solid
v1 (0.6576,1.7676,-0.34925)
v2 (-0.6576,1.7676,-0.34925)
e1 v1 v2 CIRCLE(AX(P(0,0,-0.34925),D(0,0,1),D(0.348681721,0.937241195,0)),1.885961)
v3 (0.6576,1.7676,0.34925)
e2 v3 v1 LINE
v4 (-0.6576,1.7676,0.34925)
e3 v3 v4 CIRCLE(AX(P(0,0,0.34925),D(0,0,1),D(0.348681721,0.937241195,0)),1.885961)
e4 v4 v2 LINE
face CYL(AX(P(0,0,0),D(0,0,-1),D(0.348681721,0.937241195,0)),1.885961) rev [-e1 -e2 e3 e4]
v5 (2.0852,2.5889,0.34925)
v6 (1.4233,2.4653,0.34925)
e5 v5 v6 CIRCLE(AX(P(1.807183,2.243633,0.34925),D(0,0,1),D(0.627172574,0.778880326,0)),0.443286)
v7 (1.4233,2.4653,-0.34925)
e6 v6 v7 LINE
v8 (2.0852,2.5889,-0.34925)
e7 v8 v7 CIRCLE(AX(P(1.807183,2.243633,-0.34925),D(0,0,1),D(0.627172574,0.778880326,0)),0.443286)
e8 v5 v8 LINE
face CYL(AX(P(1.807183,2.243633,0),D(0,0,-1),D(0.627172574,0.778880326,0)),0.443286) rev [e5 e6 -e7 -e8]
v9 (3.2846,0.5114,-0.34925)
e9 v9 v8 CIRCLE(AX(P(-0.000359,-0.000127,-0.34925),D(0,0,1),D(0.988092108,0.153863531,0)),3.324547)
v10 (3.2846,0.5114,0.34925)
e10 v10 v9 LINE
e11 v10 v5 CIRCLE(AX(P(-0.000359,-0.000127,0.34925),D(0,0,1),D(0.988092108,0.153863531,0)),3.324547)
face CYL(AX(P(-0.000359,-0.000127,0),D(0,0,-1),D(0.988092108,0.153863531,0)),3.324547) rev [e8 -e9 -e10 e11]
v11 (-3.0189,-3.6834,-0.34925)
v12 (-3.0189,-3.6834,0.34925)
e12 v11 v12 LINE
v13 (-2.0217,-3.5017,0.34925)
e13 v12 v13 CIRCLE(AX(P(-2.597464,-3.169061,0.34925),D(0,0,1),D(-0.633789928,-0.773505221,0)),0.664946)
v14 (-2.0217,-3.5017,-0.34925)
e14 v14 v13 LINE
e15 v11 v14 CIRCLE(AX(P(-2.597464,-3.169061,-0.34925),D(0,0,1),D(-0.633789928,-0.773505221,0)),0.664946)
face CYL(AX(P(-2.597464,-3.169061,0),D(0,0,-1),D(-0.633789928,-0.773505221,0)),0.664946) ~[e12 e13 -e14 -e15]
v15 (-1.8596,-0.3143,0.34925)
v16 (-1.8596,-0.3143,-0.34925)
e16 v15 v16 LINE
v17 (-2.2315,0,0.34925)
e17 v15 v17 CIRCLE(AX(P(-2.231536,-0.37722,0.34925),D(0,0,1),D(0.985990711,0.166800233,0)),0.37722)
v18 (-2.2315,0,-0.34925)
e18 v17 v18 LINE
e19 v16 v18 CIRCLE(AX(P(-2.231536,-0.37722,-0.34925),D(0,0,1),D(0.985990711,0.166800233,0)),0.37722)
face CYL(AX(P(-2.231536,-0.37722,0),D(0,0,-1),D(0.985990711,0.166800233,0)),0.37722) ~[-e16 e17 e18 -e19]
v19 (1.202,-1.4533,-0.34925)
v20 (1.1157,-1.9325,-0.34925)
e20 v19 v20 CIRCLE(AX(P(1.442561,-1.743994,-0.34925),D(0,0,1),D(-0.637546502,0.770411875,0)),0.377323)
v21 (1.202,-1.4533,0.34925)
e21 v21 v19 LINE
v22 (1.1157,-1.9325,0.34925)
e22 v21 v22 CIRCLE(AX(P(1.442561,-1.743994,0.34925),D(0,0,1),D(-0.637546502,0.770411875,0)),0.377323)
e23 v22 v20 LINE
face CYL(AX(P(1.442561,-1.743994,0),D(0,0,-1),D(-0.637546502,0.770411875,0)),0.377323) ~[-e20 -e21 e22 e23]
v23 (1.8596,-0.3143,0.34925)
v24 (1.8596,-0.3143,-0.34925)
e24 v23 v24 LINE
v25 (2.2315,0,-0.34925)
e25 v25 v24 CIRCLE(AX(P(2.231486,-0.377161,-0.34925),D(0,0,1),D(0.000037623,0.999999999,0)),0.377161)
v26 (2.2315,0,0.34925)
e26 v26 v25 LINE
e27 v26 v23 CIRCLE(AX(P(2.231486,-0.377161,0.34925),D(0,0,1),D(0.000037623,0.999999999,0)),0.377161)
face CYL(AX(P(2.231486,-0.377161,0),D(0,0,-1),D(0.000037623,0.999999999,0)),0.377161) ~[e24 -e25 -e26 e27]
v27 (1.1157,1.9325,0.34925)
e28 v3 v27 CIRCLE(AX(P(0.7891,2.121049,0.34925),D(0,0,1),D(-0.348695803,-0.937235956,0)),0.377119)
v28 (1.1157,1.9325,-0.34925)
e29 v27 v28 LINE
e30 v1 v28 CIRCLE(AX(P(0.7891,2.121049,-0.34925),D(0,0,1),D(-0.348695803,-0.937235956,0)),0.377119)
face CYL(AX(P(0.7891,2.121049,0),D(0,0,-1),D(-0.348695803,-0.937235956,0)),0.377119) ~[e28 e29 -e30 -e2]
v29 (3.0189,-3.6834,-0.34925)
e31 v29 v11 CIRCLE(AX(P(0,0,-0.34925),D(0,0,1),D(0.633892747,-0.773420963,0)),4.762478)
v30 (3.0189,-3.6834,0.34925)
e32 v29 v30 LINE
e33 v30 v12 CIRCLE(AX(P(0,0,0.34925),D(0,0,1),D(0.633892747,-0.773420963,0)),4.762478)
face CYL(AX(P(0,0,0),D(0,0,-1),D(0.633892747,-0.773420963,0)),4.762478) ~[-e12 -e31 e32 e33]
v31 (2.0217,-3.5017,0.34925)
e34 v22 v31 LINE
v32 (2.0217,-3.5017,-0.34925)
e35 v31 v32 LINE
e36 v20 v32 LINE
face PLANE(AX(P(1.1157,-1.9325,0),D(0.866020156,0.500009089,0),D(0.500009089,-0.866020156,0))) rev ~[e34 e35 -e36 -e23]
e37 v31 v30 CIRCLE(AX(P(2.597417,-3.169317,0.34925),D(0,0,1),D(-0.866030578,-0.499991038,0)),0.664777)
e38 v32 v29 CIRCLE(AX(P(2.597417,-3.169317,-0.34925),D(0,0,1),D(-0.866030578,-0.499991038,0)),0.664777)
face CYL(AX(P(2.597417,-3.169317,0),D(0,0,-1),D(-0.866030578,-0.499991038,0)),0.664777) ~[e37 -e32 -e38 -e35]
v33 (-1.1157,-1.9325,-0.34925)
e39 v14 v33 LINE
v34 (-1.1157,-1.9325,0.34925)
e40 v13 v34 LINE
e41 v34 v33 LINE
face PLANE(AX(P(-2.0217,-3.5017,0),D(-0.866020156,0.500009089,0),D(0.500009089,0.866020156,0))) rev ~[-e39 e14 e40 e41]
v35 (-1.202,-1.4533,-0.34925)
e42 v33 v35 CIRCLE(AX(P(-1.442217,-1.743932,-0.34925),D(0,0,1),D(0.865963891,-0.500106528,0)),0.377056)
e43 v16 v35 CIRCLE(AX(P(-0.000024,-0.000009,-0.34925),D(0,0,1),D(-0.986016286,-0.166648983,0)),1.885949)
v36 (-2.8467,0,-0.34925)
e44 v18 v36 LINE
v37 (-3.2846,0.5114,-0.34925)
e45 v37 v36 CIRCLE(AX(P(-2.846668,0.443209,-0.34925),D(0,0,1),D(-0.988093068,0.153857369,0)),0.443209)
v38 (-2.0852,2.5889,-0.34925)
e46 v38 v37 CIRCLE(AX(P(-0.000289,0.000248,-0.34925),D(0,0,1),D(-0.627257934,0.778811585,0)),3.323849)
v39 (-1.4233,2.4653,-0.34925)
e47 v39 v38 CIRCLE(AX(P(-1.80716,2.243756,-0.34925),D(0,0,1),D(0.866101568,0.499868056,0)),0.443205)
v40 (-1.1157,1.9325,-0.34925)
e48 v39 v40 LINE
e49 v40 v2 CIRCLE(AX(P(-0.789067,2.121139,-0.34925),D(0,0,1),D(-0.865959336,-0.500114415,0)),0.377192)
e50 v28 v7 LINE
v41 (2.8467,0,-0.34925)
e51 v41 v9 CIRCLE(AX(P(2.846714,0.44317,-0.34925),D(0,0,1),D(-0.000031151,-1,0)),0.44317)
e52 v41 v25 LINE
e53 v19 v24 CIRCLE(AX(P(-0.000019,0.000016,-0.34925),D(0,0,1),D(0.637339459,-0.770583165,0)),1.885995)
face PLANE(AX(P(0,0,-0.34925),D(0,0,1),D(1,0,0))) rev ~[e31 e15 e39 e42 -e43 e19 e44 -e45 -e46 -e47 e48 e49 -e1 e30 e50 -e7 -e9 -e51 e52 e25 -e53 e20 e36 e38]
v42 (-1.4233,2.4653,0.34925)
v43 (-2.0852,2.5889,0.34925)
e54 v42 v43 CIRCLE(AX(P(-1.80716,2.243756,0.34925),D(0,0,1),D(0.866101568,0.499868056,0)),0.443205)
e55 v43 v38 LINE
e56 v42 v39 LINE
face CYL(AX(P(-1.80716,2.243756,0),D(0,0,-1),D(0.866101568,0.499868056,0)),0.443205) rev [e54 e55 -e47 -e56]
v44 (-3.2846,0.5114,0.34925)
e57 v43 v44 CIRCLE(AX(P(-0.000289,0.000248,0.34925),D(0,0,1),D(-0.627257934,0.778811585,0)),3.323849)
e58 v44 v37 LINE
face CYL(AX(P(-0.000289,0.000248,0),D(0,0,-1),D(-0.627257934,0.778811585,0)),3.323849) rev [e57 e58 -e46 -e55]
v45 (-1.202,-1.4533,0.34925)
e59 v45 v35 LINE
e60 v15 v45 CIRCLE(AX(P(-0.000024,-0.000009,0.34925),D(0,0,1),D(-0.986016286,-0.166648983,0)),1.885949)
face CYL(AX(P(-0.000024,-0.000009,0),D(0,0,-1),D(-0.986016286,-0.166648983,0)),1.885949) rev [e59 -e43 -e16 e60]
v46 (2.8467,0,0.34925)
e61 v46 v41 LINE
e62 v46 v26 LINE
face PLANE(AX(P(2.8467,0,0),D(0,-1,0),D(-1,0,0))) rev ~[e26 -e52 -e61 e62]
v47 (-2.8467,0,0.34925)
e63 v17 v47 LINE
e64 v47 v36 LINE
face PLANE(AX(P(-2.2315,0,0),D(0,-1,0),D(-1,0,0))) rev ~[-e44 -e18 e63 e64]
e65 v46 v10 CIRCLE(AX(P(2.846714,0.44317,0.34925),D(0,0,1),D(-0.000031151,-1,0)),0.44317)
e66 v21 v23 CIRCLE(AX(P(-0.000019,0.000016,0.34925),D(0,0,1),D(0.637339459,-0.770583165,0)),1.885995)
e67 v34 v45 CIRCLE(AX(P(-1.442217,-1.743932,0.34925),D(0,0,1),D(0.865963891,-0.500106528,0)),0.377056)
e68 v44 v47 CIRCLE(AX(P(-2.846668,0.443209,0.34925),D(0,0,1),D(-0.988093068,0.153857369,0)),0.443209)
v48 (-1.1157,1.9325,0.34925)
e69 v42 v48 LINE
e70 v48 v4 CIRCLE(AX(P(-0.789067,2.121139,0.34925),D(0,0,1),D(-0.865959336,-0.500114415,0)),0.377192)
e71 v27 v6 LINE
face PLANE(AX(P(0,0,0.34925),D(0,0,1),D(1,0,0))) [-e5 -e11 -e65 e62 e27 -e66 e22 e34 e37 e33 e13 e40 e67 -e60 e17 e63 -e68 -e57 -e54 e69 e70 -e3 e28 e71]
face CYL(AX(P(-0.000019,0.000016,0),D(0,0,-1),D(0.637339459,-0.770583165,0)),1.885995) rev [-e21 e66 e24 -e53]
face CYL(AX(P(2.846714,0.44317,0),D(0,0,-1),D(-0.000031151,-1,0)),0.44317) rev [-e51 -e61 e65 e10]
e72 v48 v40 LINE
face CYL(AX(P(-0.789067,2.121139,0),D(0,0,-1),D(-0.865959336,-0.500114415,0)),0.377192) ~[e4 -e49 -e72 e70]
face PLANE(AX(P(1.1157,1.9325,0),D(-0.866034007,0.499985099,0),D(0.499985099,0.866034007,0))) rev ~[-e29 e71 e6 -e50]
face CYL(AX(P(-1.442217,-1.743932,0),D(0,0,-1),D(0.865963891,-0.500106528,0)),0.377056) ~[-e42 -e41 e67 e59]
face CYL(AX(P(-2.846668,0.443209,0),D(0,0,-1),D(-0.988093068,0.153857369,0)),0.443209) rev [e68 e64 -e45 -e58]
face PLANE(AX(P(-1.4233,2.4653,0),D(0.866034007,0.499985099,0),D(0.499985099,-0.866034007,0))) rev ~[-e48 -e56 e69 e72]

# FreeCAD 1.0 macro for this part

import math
import FreeCAD as App
import Part
import Sketcher
Q = App.Units.Quantity

doc = App.newDocument("Part")
body = doc.addObject("PartDesign::Body", "Body")

sketch1 = body.newObject("Sketcher::SketchObject", "Sketch")
sketch1.AttachmentSupport = (doc.getObject("XY_Plane"), [""])
sketch1.MapMode = "FlatFace"
sketch1.addGeometry([
    Part.ArcOfCircle(Part.Circle(App.Vector(2.5975, -3.1692, 0), App.Vector(0, 0, 1), 0.664907), math.radians(-149.995394), math.radians(-50.664508)),
    Part.ArcOfCircle(Part.Circle(App.Vector(0, 0, 0), App.Vector(0, 0, 1), 4.762478), math.radians(-50.66209), math.radians(230.66209)),
    Part.ArcOfCircle(Part.Circle(App.Vector(-2.5975, -3.1692, 0), App.Vector(0, 0, 1), 0.664815), math.radians(-129.335492), math.radians(-30.004606)),
    Part.LineSegment(App.Vector(-2.0217, -3.5017, 0), App.Vector(-1.1157, -1.9325, 0)),
    Part.ArcOfCircle(Part.Circle(App.Vector(-1.4424, -1.7439, 0), App.Vector(0, 0, 1), 0.37723), math.radians(-29.997325), math.radians(50.400612)),
    Part.ArcOfCircle(Part.Circle(App.Vector(0, 0, 0), App.Vector(0, 0, 1), 1.885961), math.radians(-170.406824), math.radians(-129.593579)),
    Part.ArcOfCircle(Part.Circle(App.Vector(-2.2315, -0.3772, 0), App.Vector(0, 0, 1), 0.377182), math.radians(9.599674), math.radians(90)),
    Part.LineSegment(App.Vector(-2.2315, 0, 0), App.Vector(-2.8467, 0, 0)),
    Part.ArcOfCircle(Part.Circle(App.Vector(-2.8467, 0.4432, 0), App.Vector(0, 0, 1), 0.443179), math.radians(171.147682), math.radians(270)),
    Part.ArcOfCircle(Part.Circle(App.Vector(0, 0, 0), App.Vector(0, 0, 1), 3.324173), math.radians(128.84931), math.radians(171.150313)),
    Part.ArcOfCircle(Part.Circle(App.Vector(-1.8072, 2.2437, 0), App.Vector(0, 0, 1), 0.443267), math.radians(29.994989), math.radians(128.845544)),
    Part.LineSegment(App.Vector(-1.4233, 2.4653, 0), App.Vector(-1.1157, 1.9325, 0)),
    Part.ArcOfCircle(Part.Circle(App.Vector(-0.7891, 2.1211, 0), App.Vector(0, 0, 1), 0.377144), math.radians(-149.995079), math.radians(-69.595084)),
    Part.ArcOfCircle(Part.Circle(App.Vector(0, 0, 0), App.Vector(0, 0, 1), 1.885961), math.radians(69.593296), math.radians(110.406704)),
    Part.ArcOfCircle(Part.Circle(App.Vector(0.7891, 2.1211, 0), App.Vector(0, 0, 1), 0.377166), math.radians(-110.404916), math.radians(-30.004921)),
    Part.LineSegment(App.Vector(1.1157, 1.9325, 0), App.Vector(1.4233, 2.4653, 0)),
    Part.ArcOfCircle(Part.Circle(App.Vector(1.8072, 2.2437, 0), App.Vector(0, 0, 1), 0.443223), math.radians(51.154456), math.radians(150.005011)),
    Part.ArcOfCircle(Part.Circle(App.Vector(0, 0, 0), App.Vector(0, 0, 1), 3.324224), math.radians(8.849687), math.radians(51.15069)),
    Part.ArcOfCircle(Part.Circle(App.Vector(2.8467, 0.4432, 0), App.Vector(0, 0, 1), 0.4432), math.radians(-90), math.radians(8.852318)),
    Part.LineSegment(App.Vector(2.8467, 0, 0), App.Vector(2.2315, 0, 0)),
    Part.ArcOfCircle(Part.Circle(App.Vector(2.2315, -0.3772, 0), App.Vector(0, 0, 1), 0.3772), math.radians(90), math.radians(170.400326)),
    Part.ArcOfCircle(Part.Circle(App.Vector(0, 0, 0), App.Vector(0, 0, 1), 1.885974), math.radians(-50.406421), math.radians(-9.593176)),
    Part.ArcOfCircle(Part.Circle(App.Vector(1.4424, -1.7439, 0), App.Vector(0, 0, 1), 0.377148), math.radians(129.599388), math.radians(209.997325)),
    Part.LineSegment(App.Vector(1.1157, -1.9325, 0), App.Vector(2.0217, -3.5017, 0)),
], False)
sketch1.addConstraint([
    Sketcher.Constraint("Tangent", 0, 2, 1, 1),
    Sketcher.Constraint("Tangent", 1, 2, 2, 1),
    Sketcher.Constraint("Tangent", 2, 2, 3, 1),
    Sketcher.Constraint("Tangent", 3, 2, 4, 1),
    Sketcher.Constraint("Tangent", 4, 2, 5, 2),
    Sketcher.Constraint("Tangent", 5, 1, 6, 1),
    Sketcher.Constraint("Tangent", 6, 2, 7, 1),
    Sketcher.Constraint("Tangent", 7, 2, 8, 2),
    Sketcher.Constraint("Tangent", 8, 1, 9, 2),
    Sketcher.Constraint("Tangent", 9, 1, 10, 2),
    Sketcher.Constraint("Tangent", 10, 1, 11, 1),
    Sketcher.Constraint("Tangent", 11, 2, 12, 1),
    Sketcher.Constraint("Tangent", 12, 2, 13, 2),
    Sketcher.Constraint("Tangent", 13, 1, 14, 1),
    Sketcher.Constraint("Tangent", 14, 2, 15, 1),
    Sketcher.Constraint("Tangent", 15, 2, 16, 2),
    Sketcher.Constraint("Tangent", 16, 1, 17, 2),
    Sketcher.Constraint("Tangent", 17, 1, 18, 2),
    Sketcher.Constraint("Tangent", 18, 1, 19, 1),
    Sketcher.Constraint("Tangent", 19, 2, 20, 1),
    Sketcher.Constraint("Tangent", 20, 2, 21, 2),
    Sketcher.Constraint("Tangent", 21, 1, 22, 1),
    Sketcher.Constraint("Tangent", 22, 2, 23, 1),
    Sketcher.Constraint("Tangent", 23, 2, 0, 1),
    Sketcher.Constraint("Horizontal", 7),
    Sketcher.Constraint("Horizontal", 19),
    Sketcher.Constraint("Coincident", 1, 3, -1, 1),
    Sketcher.Constraint("Coincident", 5, 3, -1, 1),
    Sketcher.Constraint("Coincident", 9, 3, -1, 1),
    Sketcher.Constraint("Coincident", 13, 3, -1, 1),
    Sketcher.Constraint("Coincident", 17, 3, -1, 1),
    Sketcher.Constraint("Coincident", 21, 3, -1, 1),
    Sketcher.Constraint("Equal", 0, 2),
    Sketcher.Constraint("Equal", 4, 6),
    Sketcher.Constraint("Equal", 8, 10),
    Sketcher.Constraint("Equal", 6, 12),
    Sketcher.Constraint("Equal", 5, 13),
    Sketcher.Constraint("Equal", 12, 14),
    Sketcher.Constraint("Equal", 10, 16),
    Sketcher.Constraint("Equal", 9, 17),
    Sketcher.Constraint("Equal", 16, 18),
    Sketcher.Constraint("Equal", 14, 20),
    Sketcher.Constraint("Equal", 13, 21),
    Sketcher.Constraint("Equal", 20, 22),
    Sketcher.Constraint("Symmetric", 3, 2, 14, 2, -1, 1),
    Sketcher.Constraint("Symmetric", 7, 2, 18, 1, -1, 1),
    Sketcher.Constraint("Symmetric", 11, 2, 22, 2, -1, 1),
    Sketcher.Constraint("Symmetric", 11, 2, 14, 2, -2),
    Sketcher.Constraint("Parallel", 3, 15),
    Sketcher.Constraint("Angle", 3, Q("59.9994 deg")),
    Sketcher.Constraint("Radius", 1, Q("0.1875 in")),
    Sketcher.Constraint("Radius", 0, 0.665),
    Sketcher.Constraint("Radius", 4, 0.3772),
    Sketcher.Constraint("Radius", 5, 1.886),
    Sketcher.Constraint("Radius", 8, 0.4432),
    Sketcher.Constraint("Radius", 9, 3.3242),
])
pad1 = body.newObject("PartDesign::Pad", "Pad")
pad1.Profile = sketch1
pad1.Length = Q("0.0275 in")
pad1.Midplane = True

doc.recompute()
